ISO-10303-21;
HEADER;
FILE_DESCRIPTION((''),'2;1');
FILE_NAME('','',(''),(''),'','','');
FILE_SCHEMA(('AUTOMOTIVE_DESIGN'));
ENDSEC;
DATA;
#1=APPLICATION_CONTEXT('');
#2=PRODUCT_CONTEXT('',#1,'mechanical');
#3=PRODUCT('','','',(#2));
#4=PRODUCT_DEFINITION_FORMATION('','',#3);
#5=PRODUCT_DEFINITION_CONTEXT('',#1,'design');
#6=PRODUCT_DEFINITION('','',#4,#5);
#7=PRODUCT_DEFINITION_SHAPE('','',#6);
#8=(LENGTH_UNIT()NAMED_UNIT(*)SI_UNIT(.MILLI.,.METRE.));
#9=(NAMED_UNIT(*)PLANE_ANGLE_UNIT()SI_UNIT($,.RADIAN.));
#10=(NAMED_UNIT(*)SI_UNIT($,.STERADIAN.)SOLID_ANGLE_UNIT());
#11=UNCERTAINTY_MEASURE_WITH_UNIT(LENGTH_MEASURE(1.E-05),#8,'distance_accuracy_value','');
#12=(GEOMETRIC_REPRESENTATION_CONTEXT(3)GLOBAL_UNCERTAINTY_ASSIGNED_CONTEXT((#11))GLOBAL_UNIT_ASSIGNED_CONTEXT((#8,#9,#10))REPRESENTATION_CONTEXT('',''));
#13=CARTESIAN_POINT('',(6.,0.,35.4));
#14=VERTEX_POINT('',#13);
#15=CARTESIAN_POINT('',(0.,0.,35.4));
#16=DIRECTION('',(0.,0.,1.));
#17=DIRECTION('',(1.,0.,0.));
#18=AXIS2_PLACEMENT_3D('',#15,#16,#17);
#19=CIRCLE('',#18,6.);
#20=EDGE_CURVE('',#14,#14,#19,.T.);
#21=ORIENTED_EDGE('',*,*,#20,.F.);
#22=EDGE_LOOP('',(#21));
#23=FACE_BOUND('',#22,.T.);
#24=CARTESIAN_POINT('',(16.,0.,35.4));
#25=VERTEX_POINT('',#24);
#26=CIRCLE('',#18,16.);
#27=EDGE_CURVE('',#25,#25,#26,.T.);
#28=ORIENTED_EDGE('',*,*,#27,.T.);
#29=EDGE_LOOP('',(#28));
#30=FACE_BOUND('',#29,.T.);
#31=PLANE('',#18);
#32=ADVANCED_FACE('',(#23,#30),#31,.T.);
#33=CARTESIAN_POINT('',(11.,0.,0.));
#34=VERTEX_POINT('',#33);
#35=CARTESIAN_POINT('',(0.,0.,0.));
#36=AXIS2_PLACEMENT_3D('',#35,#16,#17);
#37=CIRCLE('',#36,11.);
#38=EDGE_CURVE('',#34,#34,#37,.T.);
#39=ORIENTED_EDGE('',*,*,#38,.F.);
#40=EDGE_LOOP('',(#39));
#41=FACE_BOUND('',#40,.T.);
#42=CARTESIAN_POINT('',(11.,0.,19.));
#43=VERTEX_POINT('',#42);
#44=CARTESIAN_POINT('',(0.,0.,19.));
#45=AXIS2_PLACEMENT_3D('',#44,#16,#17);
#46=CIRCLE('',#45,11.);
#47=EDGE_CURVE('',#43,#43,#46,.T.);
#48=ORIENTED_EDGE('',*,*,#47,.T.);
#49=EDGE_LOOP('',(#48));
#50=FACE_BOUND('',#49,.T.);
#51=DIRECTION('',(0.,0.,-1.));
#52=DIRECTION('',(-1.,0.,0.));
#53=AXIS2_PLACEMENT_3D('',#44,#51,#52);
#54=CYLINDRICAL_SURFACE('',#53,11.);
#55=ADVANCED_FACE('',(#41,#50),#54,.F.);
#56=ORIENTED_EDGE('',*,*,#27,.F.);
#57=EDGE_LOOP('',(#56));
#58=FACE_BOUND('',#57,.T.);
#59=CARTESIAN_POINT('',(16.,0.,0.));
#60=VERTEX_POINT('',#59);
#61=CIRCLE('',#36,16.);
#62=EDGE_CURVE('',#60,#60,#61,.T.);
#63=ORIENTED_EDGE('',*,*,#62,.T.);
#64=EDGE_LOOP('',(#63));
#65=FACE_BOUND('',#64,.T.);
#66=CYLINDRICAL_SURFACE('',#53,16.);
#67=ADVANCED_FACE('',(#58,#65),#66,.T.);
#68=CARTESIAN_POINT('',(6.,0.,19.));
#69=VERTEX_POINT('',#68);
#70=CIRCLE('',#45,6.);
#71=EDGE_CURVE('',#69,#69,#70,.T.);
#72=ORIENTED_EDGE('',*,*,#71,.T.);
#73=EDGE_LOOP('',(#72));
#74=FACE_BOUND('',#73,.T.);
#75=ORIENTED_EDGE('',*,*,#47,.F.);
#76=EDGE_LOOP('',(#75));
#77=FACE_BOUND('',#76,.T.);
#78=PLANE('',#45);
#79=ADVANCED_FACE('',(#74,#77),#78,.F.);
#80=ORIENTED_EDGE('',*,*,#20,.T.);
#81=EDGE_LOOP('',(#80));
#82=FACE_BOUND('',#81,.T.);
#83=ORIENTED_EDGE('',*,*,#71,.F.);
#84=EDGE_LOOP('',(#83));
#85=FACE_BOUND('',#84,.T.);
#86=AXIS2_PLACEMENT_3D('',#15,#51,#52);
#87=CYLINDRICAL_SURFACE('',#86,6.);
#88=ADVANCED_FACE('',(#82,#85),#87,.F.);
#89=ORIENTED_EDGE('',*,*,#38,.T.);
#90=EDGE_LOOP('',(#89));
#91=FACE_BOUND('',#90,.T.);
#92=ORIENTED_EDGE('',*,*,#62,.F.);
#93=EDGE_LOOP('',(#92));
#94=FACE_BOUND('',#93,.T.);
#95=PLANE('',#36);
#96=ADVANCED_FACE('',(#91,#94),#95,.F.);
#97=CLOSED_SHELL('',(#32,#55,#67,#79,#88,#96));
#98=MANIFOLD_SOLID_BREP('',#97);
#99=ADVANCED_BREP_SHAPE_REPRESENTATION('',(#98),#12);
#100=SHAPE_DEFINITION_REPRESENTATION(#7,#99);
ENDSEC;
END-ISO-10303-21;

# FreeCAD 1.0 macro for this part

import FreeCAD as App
import Part
import Sketcher

doc = App.newDocument("Part")
body = doc.addObject("PartDesign::Body", "Body")

sketch1 = body.newObject("Sketcher::SketchObject", "Sketch")
sketch1.AttachmentSupport = (doc.getObject("XY_Plane"), [""])
sketch1.MapMode = "FlatFace"
sketch1.addGeometry(Part.Circle(App.Vector(0, 0, 0), App.Vector(0, 0, 1), 16), False)
sketch1.addGeometry(Part.Circle(App.Vector(0, 0, 0), App.Vector(0, 0, 1), 11), False)
sketch1.addConstraint(Sketcher.Constraint("Coincident", 0, 3, -1, 1))
sketch1.addConstraint(Sketcher.Constraint("Coincident", 1, 3, -1, 1))
sketch1.addConstraint(Sketcher.Constraint("Diameter", 0, 32.0))
sketch1.addConstraint(Sketcher.Constraint("Diameter", 1, 22.0))
pad1 = body.newObject("PartDesign::Pad", "Pad")
pad1.Profile = sketch1
pad1.Length = 19

sketch2 = body.newObject("Sketcher::SketchObject", "Sketch001")
sketch2.AttachmentSupport = (doc.getObject("XY_Plane"), [""])
sketch2.MapMode = "FlatFace"
sketch2.AttachmentOffset = App.Placement(App.Vector(0, 0, 19), App.Rotation())
sketch2.addGeometry(Part.Circle(App.Vector(0, 0, 0), App.Vector(0, 0, 1), 16), False)
sketch2.addGeometry(Part.Circle(App.Vector(0, 0, 0), App.Vector(0, 0, 1), 6), False)
sketch2.addConstraint(Sketcher.Constraint("Coincident", 0, 3, -1, 1))
sketch2.addConstraint(Sketcher.Constraint("Coincident", 1, 3, -1, 1))
sketch2.addConstraint(Sketcher.Constraint("Diameter", 0, 32.0))
sketch2.addConstraint(Sketcher.Constraint("Diameter", 1, 12.0))
pad2 = body.newObject("PartDesign::Pad", "Pad001")
pad2.Profile = sketch2
pad2.Length = 16.4

doc.recompute()
